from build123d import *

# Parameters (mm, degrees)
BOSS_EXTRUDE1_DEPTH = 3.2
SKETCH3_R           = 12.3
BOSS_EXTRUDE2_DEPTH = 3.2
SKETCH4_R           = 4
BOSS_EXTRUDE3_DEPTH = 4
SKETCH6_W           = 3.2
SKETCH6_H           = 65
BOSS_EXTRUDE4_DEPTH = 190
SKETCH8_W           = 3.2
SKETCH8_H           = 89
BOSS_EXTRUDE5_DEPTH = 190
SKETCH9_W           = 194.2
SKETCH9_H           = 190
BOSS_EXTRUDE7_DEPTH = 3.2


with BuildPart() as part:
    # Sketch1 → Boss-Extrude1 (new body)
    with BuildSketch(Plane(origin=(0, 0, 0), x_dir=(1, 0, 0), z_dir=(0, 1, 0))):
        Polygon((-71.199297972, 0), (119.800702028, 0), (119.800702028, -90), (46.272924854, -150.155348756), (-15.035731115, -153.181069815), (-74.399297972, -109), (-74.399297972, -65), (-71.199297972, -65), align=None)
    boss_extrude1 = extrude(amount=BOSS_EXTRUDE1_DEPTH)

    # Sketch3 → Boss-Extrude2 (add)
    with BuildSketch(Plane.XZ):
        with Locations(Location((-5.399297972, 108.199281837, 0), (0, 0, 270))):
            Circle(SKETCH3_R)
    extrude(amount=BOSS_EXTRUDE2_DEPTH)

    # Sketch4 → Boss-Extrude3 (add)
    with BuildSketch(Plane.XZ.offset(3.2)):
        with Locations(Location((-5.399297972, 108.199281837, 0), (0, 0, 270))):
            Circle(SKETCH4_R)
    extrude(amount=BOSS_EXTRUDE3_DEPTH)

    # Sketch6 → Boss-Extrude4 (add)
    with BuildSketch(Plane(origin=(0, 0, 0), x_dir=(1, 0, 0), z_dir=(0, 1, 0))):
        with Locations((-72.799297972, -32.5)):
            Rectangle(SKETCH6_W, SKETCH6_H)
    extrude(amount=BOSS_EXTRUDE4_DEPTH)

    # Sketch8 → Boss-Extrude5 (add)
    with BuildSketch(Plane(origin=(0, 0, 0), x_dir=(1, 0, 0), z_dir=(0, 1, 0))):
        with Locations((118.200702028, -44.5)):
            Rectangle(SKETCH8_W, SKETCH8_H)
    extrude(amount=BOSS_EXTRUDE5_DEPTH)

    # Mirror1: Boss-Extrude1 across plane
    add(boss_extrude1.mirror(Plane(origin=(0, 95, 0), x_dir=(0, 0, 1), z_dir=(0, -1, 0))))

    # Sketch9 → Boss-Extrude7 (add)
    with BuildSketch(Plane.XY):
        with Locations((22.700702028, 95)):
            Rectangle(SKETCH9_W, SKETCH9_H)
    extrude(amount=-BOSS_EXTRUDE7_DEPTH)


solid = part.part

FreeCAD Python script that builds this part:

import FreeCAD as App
import Part
import Sketcher

V = App.Vector
Q = App.Units.Quantity


def add_polygon(sketch, points):
    """Adds a closed chain of lines whose ends are joined by coincident constraints."""
    first, n = sketch.GeometryCount, len(points)
    for a, b in zip(points, points[1:] + points[:1]):
        sketch.addGeometry(Part.LineSegment(App.Vector(*a, 0), App.Vector(*b, 0)), False)
    for i in range(n):
        sketch.addConstraint(Sketcher.Constraint("Coincident", first + i, 2, first + (i + 1) % n, 1))

doc = App.newDocument("Part")
body = doc.addObject("PartDesign::Body", "Body")

# Sketch on XZ plane
sketch1 = body.newObject("Sketcher::SketchObject", "Sketch")
sketch1.AttachmentSupport = (doc.getObject("XZ_Plane"), [""])
sketch1.MapMode = "FlatFace"
add_polygon(sketch1, [(119.800702, 0), (-71.199298, 0), (-71.199298, 65), (-74.399298, 65), (-74.399298, 109), (-15.035731, 153.18107), (46.272925, 150.155349), (119.800702, 90)])  # lines 0-7
sketch1.addConstraint(Sketcher.Constraint("Horizontal", 0))
sketch1.addConstraint(Sketcher.Constraint("Vertical", 1))
sketch1.addConstraint(Sketcher.Constraint("Horizontal", 2))
sketch1.addConstraint(Sketcher.Constraint("Vertical", 3))
sketch1.addConstraint(Sketcher.Constraint("Vertical", 7))
sketch1.addConstraint(Sketcher.Constraint("PointOnObject", 0, 2, -1))
sketch1.addConstraint(Sketcher.Constraint("DistanceX", 0, 2, 0, 1, Q("191 mm")))
sketch1.addConstraint(Sketcher.Constraint("DistanceY", 1, 1, 1, 2, Q("65 mm")))
sketch1.addConstraint(Sketcher.Constraint("DistanceY", 3, 1, 3, 2, Q("44 mm")))
sketch1.addConstraint(Sketcher.Constraint("DistanceY", 7, 2, 7, 1, Q("90 mm")))
sketch1.addConstraint(Sketcher.Constraint("Distance", 4, Q("74 mm")))
sketch1.addConstraint(Sketcher.Constraint("Distance", 6, Q("95 mm")))
sketch1.addConstraint(Sketcher.Constraint("DistanceX", 2, 2, 2, 1, Q("3.2 mm")))
sketch1.addConstraint(Sketcher.Constraint("DistanceX", 4, 2, -1, 1, Q("15.035731 mm")))
sketch1.addConstraint(Sketcher.Constraint("DistanceY", -1, 1, 4, 2, Q("153.18107 mm")))
sketch1.addConstraint(Sketcher.Constraint("DistanceY", -1, 1, 5, 2, Q("150.155349 mm")))
pad1 = body.newObject("PartDesign::Pad", "Pad")
pad1.Profile = sketch1
pad1.Length = 3.2
pad1.Reversed = True

# Sketch on XZ plane
sketch2 = body.newObject("Sketcher::SketchObject", "Sketch001")
sketch2.AttachmentSupport = (doc.getObject("XZ_Plane"), [""])
sketch2.MapMode = "FlatFace"
sketch2.addGeometry(Part.Circle(V(-5.399298, 108.199282, 0), V(0, 0, 1), 12.3), False)
sketch2.addConstraint(Sketcher.Constraint("Diameter", 0, Q("24.6 mm")))
sketch2.addConstraint(Sketcher.Constraint("DistanceY", -1, 1, 0, 3, Q("108.199282 mm")))
sketch2.addConstraint(Sketcher.Constraint("DistanceX", 0, 3, -1, 1, Q("5.399298 mm")))
pad2 = body.newObject("PartDesign::Pad", "Pad001")
pad2.Profile = sketch2
pad2.Length = 3.2

# Sketch on XZ plane
sketch3 = body.newObject("Sketcher::SketchObject", "Sketch002")
sketch3.AttachmentSupport = (doc.getObject("XZ_Plane"), [""])
sketch3.MapMode = "FlatFace"
sketch3.AttachmentOffset = App.Placement(V(0, 0, 3.2), App.Rotation())
sketch3.addGeometry(Part.Circle(V(-5.399298, 108.199282, 0), V(0, 0, 1), 4), False)
sketch3.addConstraint(Sketcher.Constraint("Diameter", 0, Q("8 mm")))
sketch3.addConstraint(Sketcher.Constraint("DistanceY", -1, 1, 0, 3, Q("108.199282 mm")))
sketch3.addConstraint(Sketcher.Constraint("DistanceX", 0, 3, -1, 1, Q("5.399298 mm")))
pad3 = body.newObject("PartDesign::Pad", "Pad002")
pad3.Profile = sketch3
pad3.Length = 4

# Sketch on XZ plane
sketch4 = body.newObject("Sketcher::SketchObject", "Sketch003")
sketch4.AttachmentSupport = (doc.getObject("XZ_Plane"), [""])
sketch4.MapMode = "FlatFace"
add_polygon(sketch4, [(-74.399298, 0), (-74.399298, 65), (-71.199298, 65), (-71.199298, 0)])  # lines 0-3
sketch4.addConstraint(Sketcher.Constraint("Vertical", 0))
sketch4.addConstraint(Sketcher.Constraint("Horizontal", 1))
sketch4.addConstraint(Sketcher.Constraint("Vertical", 2))
sketch4.addConstraint(Sketcher.Constraint("Horizontal", 3))
sketch4.addConstraint(Sketcher.Constraint("PointOnObject", 2, 2, -1))
sketch4.addConstraint(Sketcher.Constraint("DistanceY", 0, 1, 0, 2, Q("65 mm")))
sketch4.addConstraint(Sketcher.Constraint("DistanceX", 1, 1, 1, 2, Q("3.2 mm")))
sketch4.addConstraint(Sketcher.Constraint("DistanceX", 0, 2, -1, 1, Q("74.399298 mm")))
pad4 = body.newObject("PartDesign::Pad", "Pad003")
pad4.Profile = sketch4
pad4.Length = 190
pad4.Reversed = True

# Sketch on XZ plane
sketch5 = body.newObject("Sketcher::SketchObject", "Sketch004")
sketch5.AttachmentSupport = (doc.getObject("XZ_Plane"), [""])
sketch5.MapMode = "FlatFace"
add_polygon(sketch5, [(116.600702, 0), (116.600702, 89), (119.800702, 89), (119.800702, 0)])  # lines 0-3
sketch5.addConstraint(Sketcher.Constraint("Vertical", 0))
sketch5.addConstraint(Sketcher.Constraint("Horizontal", 1))
sketch5.addConstraint(Sketcher.Constraint("Vertical", 2))
sketch5.addConstraint(Sketcher.Constraint("Horizontal", 3))
sketch5.addConstraint(Sketcher.Constraint("PointOnObject", 2, 2, -1))
sketch5.addConstraint(Sketcher.Constraint("DistanceY", 0, 1, 0, 2, Q("89 mm")))
sketch5.addConstraint(Sketcher.Constraint("DistanceX", 1, 1, 1, 2, Q("3.2 mm")))
sketch5.addConstraint(Sketcher.Constraint("DistanceX", -1, 1, 0, 2, Q("116.600702 mm")))
pad5 = body.newObject("PartDesign::Pad", "Pad004")
pad5.Profile = sketch5
pad5.Length = 190
pad5.Reversed = True
doc.recompute()

datumplane = body.newObject("PartDesign::Plane", "DatumPlane")
datumplane.AttachmentSupport = (doc.getObject("XZ_Plane"), [""])
datumplane.MapMode = "FlatFace"
datumplane.AttachmentOffset = App.Placement(V(0, 0, -95), App.Rotation())
mirrored = body.newObject("PartDesign::Mirrored", "Mirrored")
mirrored.Originals = [pad1]
mirrored.MirrorPlane = (datumplane, [""])
body.Tip = mirrored

# Sketch on XY plane
sketch6 = body.newObject("Sketcher::SketchObject", "Sketch005")
sketch6.AttachmentSupport = (doc.getObject("XY_Plane"), [""])
sketch6.MapMode = "FlatFace"
add_polygon(sketch6, [(-74.399298, 190), (-74.399298, 0), (119.800702, 0), (119.800702, 190)])  # lines 0-3
sketch6.addConstraint(Sketcher.Constraint("Vertical", 0))
sketch6.addConstraint(Sketcher.Constraint("Horizontal", 1))
sketch6.addConstraint(Sketcher.Constraint("Vertical", 2))
sketch6.addConstraint(Sketcher.Constraint("Horizontal", 3))
sketch6.addConstraint(Sketcher.Constraint("PointOnObject", 0, 2, -1))
sketch6.addConstraint(Sketcher.Constraint("DistanceY", 0, 2, 0, 1, Q("190 mm")))
sketch6.addConstraint(Sketcher.Constraint("DistanceX", 1, 1, 1, 2, Q("194.2 mm")))
sketch6.addConstraint(Sketcher.Constraint("DistanceX", 0, 2, -1, 1, Q("74.399298 mm")))
pad6 = body.newObject("PartDesign::Pad", "Pad005")
pad6.Profile = sketch6
pad6.Length = 3.2
pad6.Reversed = True

doc.recompute()
